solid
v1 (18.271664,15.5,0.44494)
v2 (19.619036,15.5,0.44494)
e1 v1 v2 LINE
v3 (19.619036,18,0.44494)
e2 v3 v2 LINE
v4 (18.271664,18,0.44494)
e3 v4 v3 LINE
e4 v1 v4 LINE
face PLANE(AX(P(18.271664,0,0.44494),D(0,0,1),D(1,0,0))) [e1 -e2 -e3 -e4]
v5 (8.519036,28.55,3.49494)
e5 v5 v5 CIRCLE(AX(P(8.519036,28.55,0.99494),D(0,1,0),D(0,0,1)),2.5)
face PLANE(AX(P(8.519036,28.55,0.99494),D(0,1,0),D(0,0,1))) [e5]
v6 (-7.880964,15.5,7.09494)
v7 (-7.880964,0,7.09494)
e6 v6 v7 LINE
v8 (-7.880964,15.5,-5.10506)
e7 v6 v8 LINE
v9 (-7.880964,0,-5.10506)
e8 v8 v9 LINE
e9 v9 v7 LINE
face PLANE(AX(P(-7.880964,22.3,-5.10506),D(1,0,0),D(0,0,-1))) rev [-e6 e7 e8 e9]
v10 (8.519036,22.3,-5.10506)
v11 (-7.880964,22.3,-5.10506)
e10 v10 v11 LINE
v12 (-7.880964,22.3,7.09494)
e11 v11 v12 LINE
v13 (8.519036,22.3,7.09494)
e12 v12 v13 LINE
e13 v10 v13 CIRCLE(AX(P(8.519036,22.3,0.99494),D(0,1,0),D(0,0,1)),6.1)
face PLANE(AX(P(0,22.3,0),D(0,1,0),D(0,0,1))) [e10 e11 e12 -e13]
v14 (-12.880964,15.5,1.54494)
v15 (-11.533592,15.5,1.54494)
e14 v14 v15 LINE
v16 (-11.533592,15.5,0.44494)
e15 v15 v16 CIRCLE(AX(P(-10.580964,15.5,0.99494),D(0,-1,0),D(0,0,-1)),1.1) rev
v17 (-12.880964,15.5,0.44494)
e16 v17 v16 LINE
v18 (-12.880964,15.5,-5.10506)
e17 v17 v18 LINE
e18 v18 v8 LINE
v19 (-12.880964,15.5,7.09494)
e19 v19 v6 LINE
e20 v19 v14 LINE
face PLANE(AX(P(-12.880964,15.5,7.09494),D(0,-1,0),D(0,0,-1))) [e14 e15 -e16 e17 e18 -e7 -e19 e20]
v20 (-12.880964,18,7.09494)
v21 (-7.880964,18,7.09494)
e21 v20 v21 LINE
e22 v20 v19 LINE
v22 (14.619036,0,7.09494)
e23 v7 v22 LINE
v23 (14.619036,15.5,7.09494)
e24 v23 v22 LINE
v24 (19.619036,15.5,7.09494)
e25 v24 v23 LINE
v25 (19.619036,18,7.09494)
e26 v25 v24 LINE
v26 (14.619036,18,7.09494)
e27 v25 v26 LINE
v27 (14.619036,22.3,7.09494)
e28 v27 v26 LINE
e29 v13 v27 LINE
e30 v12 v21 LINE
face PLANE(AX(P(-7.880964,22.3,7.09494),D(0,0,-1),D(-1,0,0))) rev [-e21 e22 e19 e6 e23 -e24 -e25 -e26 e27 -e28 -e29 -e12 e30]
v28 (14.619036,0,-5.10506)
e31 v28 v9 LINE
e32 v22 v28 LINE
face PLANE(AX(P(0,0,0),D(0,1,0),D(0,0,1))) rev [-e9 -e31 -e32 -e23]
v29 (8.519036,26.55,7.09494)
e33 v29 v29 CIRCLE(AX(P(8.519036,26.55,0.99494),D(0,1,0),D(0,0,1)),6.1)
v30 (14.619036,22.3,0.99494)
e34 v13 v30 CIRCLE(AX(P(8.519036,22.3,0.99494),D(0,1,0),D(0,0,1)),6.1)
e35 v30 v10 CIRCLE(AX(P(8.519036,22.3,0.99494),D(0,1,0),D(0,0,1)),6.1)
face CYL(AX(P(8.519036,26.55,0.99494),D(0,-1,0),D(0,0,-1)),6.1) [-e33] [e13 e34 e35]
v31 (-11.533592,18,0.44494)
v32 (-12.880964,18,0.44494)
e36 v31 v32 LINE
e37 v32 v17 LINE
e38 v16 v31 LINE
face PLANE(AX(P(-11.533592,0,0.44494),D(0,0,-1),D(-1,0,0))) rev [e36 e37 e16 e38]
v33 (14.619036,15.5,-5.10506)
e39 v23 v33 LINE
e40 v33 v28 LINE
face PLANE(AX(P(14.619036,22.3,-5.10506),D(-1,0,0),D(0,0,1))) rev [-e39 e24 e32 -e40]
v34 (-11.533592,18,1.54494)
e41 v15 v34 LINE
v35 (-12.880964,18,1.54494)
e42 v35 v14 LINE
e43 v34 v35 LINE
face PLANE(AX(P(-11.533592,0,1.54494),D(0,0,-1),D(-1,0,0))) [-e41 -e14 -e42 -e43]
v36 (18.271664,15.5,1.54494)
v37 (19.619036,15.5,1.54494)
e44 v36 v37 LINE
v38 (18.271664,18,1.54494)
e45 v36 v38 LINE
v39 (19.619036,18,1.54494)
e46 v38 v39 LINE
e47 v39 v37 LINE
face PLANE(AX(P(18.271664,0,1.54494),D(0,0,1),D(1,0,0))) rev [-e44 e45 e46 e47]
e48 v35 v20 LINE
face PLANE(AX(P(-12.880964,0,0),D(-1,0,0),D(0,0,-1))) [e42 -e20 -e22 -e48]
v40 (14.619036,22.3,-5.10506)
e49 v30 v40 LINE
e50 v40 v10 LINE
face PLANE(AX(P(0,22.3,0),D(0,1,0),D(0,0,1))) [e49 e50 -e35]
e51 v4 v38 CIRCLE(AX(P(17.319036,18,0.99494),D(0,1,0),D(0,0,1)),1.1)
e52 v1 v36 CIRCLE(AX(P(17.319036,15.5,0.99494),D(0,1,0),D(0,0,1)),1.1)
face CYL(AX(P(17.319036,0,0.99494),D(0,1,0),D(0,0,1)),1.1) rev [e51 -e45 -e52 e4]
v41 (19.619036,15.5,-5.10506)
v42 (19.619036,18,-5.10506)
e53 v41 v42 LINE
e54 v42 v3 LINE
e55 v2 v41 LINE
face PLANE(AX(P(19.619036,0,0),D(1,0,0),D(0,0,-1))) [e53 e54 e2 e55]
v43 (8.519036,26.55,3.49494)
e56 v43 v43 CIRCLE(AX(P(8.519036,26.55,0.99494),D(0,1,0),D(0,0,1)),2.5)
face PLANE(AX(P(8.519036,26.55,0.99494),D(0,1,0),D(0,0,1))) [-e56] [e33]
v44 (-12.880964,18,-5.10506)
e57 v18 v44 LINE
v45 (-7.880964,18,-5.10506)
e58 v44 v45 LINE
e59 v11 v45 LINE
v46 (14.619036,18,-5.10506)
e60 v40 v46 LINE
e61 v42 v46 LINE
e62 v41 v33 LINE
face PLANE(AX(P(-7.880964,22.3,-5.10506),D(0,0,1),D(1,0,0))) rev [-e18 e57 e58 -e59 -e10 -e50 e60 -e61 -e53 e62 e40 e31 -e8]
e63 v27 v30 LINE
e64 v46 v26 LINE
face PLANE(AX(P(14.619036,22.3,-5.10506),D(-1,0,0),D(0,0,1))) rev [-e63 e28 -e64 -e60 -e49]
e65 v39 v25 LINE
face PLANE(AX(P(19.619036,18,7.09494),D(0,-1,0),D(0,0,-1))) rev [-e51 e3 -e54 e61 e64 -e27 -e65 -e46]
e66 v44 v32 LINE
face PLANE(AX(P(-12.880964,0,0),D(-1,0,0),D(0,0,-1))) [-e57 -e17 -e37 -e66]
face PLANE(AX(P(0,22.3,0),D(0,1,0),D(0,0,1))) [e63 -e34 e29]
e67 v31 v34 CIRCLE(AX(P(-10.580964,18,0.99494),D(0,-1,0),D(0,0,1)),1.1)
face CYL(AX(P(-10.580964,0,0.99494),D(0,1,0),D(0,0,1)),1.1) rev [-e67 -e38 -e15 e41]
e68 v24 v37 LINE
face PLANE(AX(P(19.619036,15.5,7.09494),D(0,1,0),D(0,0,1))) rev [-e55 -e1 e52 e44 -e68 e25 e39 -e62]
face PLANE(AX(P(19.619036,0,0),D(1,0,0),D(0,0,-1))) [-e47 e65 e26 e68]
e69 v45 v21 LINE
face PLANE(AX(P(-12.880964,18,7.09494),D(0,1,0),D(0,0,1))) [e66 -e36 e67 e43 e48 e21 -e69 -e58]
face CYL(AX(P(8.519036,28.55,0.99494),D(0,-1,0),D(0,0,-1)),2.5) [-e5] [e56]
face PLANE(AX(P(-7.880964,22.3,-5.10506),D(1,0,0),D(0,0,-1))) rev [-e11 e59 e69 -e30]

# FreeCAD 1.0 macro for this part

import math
import FreeCAD as App
import Part
import Sketcher

doc = App.newDocument("Part")
body = doc.addObject("PartDesign::Body", "Body")

# Sketch on XZ plane
sketch1 = body.newObject("Sketcher::SketchObject", "Sketch")
sketch1.AttachmentSupport = (doc.getObject("XZ_Plane"), [""])
sketch1.MapMode = "FlatFace"
sketch1.addGeometry([
    Part.LineSegment(App.Vector(-8, -5, 0), App.Vector(-8, 7, 0)),
    Part.LineSegment(App.Vector(-8, 7, 0), App.Vector(15, 7, 0)),
    Part.LineSegment(App.Vector(15, 7, 0), App.Vector(15, -5, 0)),
    Part.LineSegment(App.Vector(15, -5, 0), App.Vector(-8, -5, 0)),
], False)
sketch1.addConstraint([
    Sketcher.Constraint("Coincident", 0, 2, 1, 1),
    Sketcher.Constraint("Coincident", 1, 2, 2, 1),
    Sketcher.Constraint("Coincident", 2, 2, 3, 1),
    Sketcher.Constraint("Coincident", 3, 2, 0, 1),
    Sketcher.Constraint("Vertical", 0),
    Sketcher.Constraint("Horizontal", 1),
    Sketcher.Constraint("Vertical", 2),
    Sketcher.Constraint("Horizontal", 3),
    Sketcher.Constraint("DistanceX", 1, 1, 1, 2, 22.5),
    Sketcher.Constraint("DistanceY", 0, 1, 0, 2, 12.2),
    Sketcher.Constraint("DistanceY", -1, 1, 0, 2, 7.09494),
    Sketcher.Constraint("DistanceX", 0, 2, -1, 1, 7.880964),
])
pad1 = body.newObject("PartDesign::Pad", "Pad")
pad1.Profile = sketch1
pad1.Length = 22.3
pad1.Reversed = True

# Sketch on YZ plane
sketch2 = body.newObject("Sketcher::SketchObject", "Sketch001")
sketch2.AttachmentSupport = (doc.getObject("YZ_Plane"), [""])
sketch2.MapMode = "FlatFace"
sketch2.AttachmentOffset = App.Placement(App.Vector(0, 0, 14.619036), App.Rotation())
sketch2.addGeometry([
    Part.LineSegment(App.Vector(18, 7.1, 0), App.Vector(15.5, 7.1, 0)),
    Part.LineSegment(App.Vector(15.5, 7.1, 0), App.Vector(15.5, -5.1, 0)),
    Part.LineSegment(App.Vector(15.5, -5.1, 0), App.Vector(18, -5.1, 0)),
    Part.LineSegment(App.Vector(18, -5.1, 0), App.Vector(18, 7.1, 0)),
], False)
sketch2.addConstraint([
    Sketcher.Constraint("Coincident", 0, 2, 1, 1),
    Sketcher.Constraint("Coincident", 1, 2, 2, 1),
    Sketcher.Constraint("Coincident", 2, 2, 3, 1),
    Sketcher.Constraint("Coincident", 3, 2, 0, 1),
    Sketcher.Constraint("Horizontal", 0),
    Sketcher.Constraint("Vertical", 1),
    Sketcher.Constraint("Horizontal", 2),
    Sketcher.Constraint("Vertical", 3),
    Sketcher.Constraint("DistanceX", 0, 2, 0, 1, 2.5),
    Sketcher.Constraint("DistanceY", 1, 2, 1, 1, 12.2),
    Sketcher.Constraint("DistanceX", -1, 1, 2, 2, 18.0),
    Sketcher.Constraint("DistanceY", -1, 1, 0, 2, 7.09494),
])
pad2 = body.newObject("PartDesign::Pad", "Pad001")
pad2.Profile = sketch2
pad2.Length = 5

# Sketch on XZ plane
sketch3 = body.newObject("Sketcher::SketchObject", "Sketch002")
sketch3.AttachmentSupport = (doc.getObject("XZ_Plane"), [""])
sketch3.MapMode = "FlatFace"
sketch3.AttachmentOffset = App.Placement(App.Vector(0, 0, -18), App.Rotation())
sketch3.addGeometry([
    Part.LineSegment(App.Vector(19.6, 0.4, 0), App.Vector(18.3, 0.4, 0)),
    Part.ArcOfCircle(Part.Circle(App.Vector(17.3, 1, 0), App.Vector(0, 0, 1), 1.1), math.radians(30), math.radians(330)),
    Part.LineSegment(App.Vector(18.3, 1.5, 0), App.Vector(19.6, 1.5, 0)),
    Part.LineSegment(App.Vector(19.6, 1.5, 0), App.Vector(19.6, 0.4, 0)),
], False)
sketch3.addConstraint([
    Sketcher.Constraint("Coincident", 0, 2, 1, 2),
    Sketcher.Constraint("Coincident", 1, 1, 2, 1),
    Sketcher.Constraint("Coincident", 2, 2, 3, 1),
    Sketcher.Constraint("Coincident", 3, 2, 0, 1),
    Sketcher.Constraint("Horizontal", 0),
    Sketcher.Constraint("Horizontal", 2),
    Sketcher.Constraint("Vertical", 3),
    Sketcher.Constraint("Vertical", 0, 2, 1, 1),
    Sketcher.Constraint("Radius", 1, 1.1),
    Sketcher.Constraint("DistanceY", 3, 2, 3, 1, 1.1),
    Sketcher.Constraint("DistanceX", 1, 3, 2, 2, 2.3),
    Sketcher.Constraint("DistanceY", -1, 1, 1, 3, 0.99494),
    Sketcher.Constraint("DistanceX", -1, 1, 1, 3, 17.319036),
])
pocket1 = body.newObject("PartDesign::Pocket", "Pocket")
pocket1.Profile = sketch3
pocket1.Type = "ThroughAll"
pocket1.Reversed = True
doc.recompute()

datumplane = body.newObject("PartDesign::Plane", "DatumPlane")
datumplane.AttachmentSupport = (doc.getObject("YZ_Plane"), [""])
datumplane.MapMode = "FlatFace"
datumplane.AttachmentOffset = App.Placement(App.Vector(0, 0, 3.369036), App.Rotation())
mirrored = body.newObject("PartDesign::Mirrored", "Mirrored")
mirrored.Originals = [pad2, pocket1]
mirrored.MirrorPlane = (datumplane, [""])
body.Tip = mirrored

# Sketch on XZ plane
sketch4 = body.newObject("Sketcher::SketchObject", "Sketch003")
sketch4.AttachmentSupport = (doc.getObject("XZ_Plane"), [""])
sketch4.MapMode = "FlatFace"
sketch4.AttachmentOffset = App.Placement(App.Vector(0, 0, -22.3), App.Rotation())
sketch4.addGeometry(Part.Circle(App.Vector(9, 1, 0), App.Vector(0, 0, 1), 6), False)
sketch4.addConstraint([
    Sketcher.Constraint("Diameter", 0, 12.2),
    Sketcher.Constraint("DistanceY", -1, 1, 0, 3, 0.99494),
    Sketcher.Constraint("DistanceX", -1, 1, 0, 3, 8.519036),
])
pad3 = body.newObject("PartDesign::Pad", "Pad002")
pad3.Profile = sketch4
pad3.Length = 4.25
pad3.Reversed = True

# Sketch on XZ plane
sketch5 = body.newObject("Sketcher::SketchObject", "Sketch004")
sketch5.AttachmentSupport = (doc.getObject("XZ_Plane"), [""])
sketch5.MapMode = "FlatFace"
sketch5.AttachmentOffset = App.Placement(App.Vector(0, 0, -26.55), App.Rotation())
sketch5.addGeometry(Part.Circle(App.Vector(8.5, 1, 0), App.Vector(0, 0, 1), 2.5), False)
sketch5.addConstraint([
    Sketcher.Constraint("Diameter", 0, 5.0),
    Sketcher.Constraint("DistanceY", -1, 1, 0, 3, 0.99494),
    Sketcher.Constraint("DistanceX", -1, 1, 0, 3, 8.519036),
])
pad4 = body.newObject("PartDesign::Pad", "Pad003")
pad4.Profile = sketch5
pad4.Length = 2
pad4.Reversed = True

doc.recompute()
